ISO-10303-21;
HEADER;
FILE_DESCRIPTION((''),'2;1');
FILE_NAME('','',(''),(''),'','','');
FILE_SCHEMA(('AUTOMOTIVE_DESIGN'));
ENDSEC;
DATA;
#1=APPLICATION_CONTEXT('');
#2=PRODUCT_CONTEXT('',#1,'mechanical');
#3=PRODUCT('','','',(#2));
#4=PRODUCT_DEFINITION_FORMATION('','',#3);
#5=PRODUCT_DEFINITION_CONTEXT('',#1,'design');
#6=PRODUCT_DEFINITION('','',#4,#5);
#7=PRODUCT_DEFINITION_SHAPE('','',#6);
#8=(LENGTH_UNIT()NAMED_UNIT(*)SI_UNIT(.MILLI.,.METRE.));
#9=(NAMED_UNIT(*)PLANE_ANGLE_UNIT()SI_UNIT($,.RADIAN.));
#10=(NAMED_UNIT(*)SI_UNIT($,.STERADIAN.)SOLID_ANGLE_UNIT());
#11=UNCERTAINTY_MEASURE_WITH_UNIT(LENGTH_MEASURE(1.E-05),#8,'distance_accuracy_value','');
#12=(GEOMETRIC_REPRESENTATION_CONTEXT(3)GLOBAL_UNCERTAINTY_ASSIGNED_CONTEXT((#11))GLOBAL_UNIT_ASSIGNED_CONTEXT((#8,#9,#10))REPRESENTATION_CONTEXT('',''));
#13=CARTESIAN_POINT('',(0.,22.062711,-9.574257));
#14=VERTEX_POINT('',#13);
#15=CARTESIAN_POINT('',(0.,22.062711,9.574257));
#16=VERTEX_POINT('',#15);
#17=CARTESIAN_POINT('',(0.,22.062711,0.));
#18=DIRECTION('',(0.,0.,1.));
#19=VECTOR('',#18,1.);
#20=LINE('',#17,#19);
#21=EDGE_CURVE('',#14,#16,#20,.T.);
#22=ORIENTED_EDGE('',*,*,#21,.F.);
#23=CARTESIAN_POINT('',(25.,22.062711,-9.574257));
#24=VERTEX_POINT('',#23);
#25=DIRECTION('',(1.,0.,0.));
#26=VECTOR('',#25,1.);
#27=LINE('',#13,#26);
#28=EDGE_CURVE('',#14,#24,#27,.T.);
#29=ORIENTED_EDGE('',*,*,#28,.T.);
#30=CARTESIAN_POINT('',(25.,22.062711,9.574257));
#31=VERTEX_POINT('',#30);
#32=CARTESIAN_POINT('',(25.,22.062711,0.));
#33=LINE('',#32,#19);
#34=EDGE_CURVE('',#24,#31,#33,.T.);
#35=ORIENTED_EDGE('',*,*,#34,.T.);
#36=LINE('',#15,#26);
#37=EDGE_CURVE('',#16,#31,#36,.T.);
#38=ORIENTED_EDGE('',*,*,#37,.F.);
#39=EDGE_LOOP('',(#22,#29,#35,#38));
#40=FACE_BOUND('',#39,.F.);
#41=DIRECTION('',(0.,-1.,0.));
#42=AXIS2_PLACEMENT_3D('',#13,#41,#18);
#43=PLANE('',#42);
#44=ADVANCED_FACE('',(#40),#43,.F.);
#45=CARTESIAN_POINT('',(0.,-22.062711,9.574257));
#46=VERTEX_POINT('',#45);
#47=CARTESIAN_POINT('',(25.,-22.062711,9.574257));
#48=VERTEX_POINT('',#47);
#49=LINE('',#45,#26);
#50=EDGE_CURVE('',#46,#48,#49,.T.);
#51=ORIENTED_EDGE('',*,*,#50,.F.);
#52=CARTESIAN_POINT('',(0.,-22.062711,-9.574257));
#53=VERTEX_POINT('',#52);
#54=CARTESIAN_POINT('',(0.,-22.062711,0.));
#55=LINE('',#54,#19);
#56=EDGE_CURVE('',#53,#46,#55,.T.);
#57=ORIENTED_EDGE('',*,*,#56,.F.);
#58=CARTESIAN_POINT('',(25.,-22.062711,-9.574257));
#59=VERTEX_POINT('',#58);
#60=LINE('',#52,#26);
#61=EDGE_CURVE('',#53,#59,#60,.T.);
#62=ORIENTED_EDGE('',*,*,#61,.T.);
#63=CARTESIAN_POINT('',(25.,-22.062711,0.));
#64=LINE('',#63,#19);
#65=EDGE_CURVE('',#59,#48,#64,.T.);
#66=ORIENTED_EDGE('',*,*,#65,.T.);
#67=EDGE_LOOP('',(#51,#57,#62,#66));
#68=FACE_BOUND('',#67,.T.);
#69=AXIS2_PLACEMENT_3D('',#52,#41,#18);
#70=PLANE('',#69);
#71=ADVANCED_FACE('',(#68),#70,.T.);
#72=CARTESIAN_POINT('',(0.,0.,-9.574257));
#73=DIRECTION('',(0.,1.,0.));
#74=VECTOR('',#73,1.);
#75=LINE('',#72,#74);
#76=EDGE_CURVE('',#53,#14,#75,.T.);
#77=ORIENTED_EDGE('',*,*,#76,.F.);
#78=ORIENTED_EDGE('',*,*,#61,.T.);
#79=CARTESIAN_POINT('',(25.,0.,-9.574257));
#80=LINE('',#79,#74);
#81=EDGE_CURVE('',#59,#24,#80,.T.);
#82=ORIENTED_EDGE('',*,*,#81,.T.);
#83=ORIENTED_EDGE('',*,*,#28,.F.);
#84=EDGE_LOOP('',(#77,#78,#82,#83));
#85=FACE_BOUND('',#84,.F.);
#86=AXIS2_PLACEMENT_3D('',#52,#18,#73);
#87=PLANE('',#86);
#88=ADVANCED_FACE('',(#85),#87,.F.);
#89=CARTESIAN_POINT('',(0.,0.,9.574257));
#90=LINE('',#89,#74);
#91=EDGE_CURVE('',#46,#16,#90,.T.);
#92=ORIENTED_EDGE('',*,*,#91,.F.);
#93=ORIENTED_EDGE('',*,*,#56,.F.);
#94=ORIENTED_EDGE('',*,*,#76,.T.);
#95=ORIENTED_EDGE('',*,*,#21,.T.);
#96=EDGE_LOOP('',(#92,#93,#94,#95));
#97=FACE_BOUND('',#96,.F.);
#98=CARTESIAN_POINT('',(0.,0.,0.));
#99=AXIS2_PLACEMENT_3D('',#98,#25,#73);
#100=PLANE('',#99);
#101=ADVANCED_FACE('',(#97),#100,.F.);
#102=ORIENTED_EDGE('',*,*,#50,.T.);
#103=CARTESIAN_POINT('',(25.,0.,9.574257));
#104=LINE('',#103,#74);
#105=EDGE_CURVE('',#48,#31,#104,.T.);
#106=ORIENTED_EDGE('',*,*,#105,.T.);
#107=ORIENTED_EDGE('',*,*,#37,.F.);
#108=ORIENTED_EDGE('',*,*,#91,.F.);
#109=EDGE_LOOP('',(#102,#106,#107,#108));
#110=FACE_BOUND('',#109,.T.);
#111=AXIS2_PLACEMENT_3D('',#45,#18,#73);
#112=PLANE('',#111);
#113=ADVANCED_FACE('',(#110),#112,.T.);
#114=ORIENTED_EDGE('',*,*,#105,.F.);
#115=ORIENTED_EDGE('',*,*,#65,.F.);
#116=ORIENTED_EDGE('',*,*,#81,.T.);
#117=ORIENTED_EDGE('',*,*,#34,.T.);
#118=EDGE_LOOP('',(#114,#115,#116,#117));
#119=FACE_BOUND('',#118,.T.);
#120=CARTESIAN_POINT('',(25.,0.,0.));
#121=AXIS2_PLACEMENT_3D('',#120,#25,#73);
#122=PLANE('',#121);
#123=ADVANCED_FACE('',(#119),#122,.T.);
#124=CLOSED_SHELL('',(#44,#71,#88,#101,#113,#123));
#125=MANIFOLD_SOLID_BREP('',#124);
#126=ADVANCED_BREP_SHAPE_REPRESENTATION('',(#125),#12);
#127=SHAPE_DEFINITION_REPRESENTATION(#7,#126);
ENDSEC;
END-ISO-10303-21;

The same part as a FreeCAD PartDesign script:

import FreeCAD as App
import Part
import Sketcher

V = App.Vector

doc = App.newDocument("Part")
body = doc.addObject("PartDesign::Body", "Body")

# Sketch on XY plane
sketch1 = body.newObject("Sketcher::SketchObject", "Sketch")
sketch1.AttachmentSupport = (doc.getObject("XY_Plane"), [""])
sketch1.MapMode = "FlatFace"
sketch1.addGeometry([
    Part.LineSegment(V(-38, 59, 0), V(-38, -59, 0)),
    Part.LineSegment(V(-38, -59, 0), V(38, -59, 0)),
    Part.LineSegment(V(38, -59, 0), V(38, 59, 0)),
    Part.LineSegment(V(38, 59, 0), V(-38, 59, 0)),
], False)
sketch1.addConstraint([
    Sketcher.Constraint("Coincident", 0, 2, 1, 1),
    Sketcher.Constraint("Coincident", 1, 2, 2, 1),
    Sketcher.Constraint("Coincident", 2, 2, 3, 1),
    Sketcher.Constraint("Coincident", 3, 2, 0, 1),
    Sketcher.Constraint("Vertical", 0),
    Sketcher.Constraint("Horizontal", 1),
    Sketcher.Constraint("Vertical", 2),
    Sketcher.Constraint("Horizontal", 3),
    Sketcher.Constraint("Symmetric", 0, 2, 2, 2, -1, 1),
    Sketcher.Constraint("DistanceX", 1, 1, 1, 2, 75.775847),
    Sketcher.Constraint("DistanceY", 0, 2, 0, 1, 118.278295),
])
pad1 = body.newObject("PartDesign::Pad", "Pad")
pad1.Profile = sketch1
pad1.Length = 62.607767
body2 = doc.addObject("PartDesign::Body", "Body001")

# Sketch on YZ plane
sketch2 = body2.newObject("Sketcher::SketchObject", "Sketch001")
sketch2.AttachmentSupport = (doc.getObject("YZ_Plane001"), [""])
sketch2.MapMode = "FlatFace"
sketch2.addGeometry([
    Part.LineSegment(V(-22, 10, 0), V(-22, -10, 0)),
    Part.LineSegment(V(-22, -10, 0), V(22, -10, 0)),
    Part.LineSegment(V(22, -10, 0), V(22, 10, 0)),
    Part.LineSegment(V(22, 10, 0), V(-22, 10, 0)),
], False)
sketch2.addConstraint([
    Sketcher.Constraint("Coincident", 0, 2, 1, 1),
    Sketcher.Constraint("Coincident", 1, 2, 2, 1),
    Sketcher.Constraint("Coincident", 2, 2, 3, 1),
    Sketcher.Constraint("Coincident", 3, 2, 0, 1),
    Sketcher.Constraint("Vertical", 0),
    Sketcher.Constraint("Horizontal", 1),
    Sketcher.Constraint("Vertical", 2),
    Sketcher.Constraint("Horizontal", 3),
    Sketcher.Constraint("Symmetric", 0, 2, 2, 2, -1, 1),
    Sketcher.Constraint("DistanceX", 1, 1, 1, 2, 44.125423),
    Sketcher.Constraint("DistanceY", 0, 2, 0, 1, 19.148514),
])
pad2 = body2.newObject("PartDesign::Pad", "Pad001")
pad2.Profile = sketch2
pad2.Length = 25
body.Visibility = False

doc.recompute()
